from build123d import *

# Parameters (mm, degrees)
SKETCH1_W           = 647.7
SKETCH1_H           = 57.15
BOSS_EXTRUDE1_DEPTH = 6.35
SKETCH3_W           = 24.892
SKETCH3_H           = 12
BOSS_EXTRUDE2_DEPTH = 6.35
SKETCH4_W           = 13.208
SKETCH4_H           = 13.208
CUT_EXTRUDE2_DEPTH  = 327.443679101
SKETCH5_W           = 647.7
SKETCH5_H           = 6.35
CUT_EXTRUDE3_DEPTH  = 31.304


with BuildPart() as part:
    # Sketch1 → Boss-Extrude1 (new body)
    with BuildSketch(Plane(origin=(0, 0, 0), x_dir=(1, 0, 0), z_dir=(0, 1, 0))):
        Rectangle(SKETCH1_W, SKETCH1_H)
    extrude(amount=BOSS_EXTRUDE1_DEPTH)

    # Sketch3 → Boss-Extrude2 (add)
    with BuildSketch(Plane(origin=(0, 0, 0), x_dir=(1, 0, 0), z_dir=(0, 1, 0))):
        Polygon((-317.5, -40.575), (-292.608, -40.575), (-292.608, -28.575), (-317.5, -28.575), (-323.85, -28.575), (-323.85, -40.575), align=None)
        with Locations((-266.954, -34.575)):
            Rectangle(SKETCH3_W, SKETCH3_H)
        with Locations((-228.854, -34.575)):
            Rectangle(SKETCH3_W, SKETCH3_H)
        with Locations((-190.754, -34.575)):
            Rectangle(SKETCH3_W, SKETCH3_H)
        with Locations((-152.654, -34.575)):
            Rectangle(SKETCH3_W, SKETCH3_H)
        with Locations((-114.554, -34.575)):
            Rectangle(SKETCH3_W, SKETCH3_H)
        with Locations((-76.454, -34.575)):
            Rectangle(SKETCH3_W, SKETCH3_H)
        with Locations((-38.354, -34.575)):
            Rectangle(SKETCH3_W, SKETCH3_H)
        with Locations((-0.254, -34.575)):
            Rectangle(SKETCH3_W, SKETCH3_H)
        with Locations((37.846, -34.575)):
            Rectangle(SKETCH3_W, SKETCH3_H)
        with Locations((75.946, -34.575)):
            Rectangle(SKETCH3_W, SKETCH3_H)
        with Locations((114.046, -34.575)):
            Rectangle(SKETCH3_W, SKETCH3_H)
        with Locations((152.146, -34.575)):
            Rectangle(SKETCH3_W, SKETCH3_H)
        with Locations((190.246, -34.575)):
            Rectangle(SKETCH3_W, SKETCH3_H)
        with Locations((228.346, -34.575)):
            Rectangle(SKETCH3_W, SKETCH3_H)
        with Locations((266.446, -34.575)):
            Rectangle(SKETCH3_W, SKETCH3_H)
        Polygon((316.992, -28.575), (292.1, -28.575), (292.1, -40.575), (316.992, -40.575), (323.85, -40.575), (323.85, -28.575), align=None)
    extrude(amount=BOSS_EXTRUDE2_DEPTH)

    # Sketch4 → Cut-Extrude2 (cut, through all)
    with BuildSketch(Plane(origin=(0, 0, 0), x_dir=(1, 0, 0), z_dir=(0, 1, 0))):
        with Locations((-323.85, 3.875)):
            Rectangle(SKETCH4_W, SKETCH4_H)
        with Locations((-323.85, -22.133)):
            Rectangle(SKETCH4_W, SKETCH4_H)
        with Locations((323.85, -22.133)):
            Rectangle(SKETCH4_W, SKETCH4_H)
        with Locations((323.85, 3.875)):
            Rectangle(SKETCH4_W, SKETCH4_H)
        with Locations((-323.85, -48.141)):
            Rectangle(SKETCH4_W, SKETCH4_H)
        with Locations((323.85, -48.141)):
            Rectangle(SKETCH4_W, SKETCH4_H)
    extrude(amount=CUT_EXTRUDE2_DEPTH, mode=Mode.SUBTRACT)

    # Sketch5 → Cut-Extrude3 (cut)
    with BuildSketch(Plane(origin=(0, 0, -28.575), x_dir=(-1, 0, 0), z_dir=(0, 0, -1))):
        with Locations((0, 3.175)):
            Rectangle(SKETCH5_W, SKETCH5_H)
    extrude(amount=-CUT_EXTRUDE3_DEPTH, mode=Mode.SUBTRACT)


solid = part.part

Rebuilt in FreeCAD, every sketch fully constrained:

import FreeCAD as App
import Part
import Sketcher
Q = App.Units.Quantity

doc = App.newDocument("Part")
params = doc.addObject("Spreadsheet::Sheet", "Params")
for row, (alias, value) in enumerate([
    ("sketch1_width", "25.5 in"),
    ("sketch1_height", "2.25 in"),
    ("pad1_length", "0.25 in"),
    ("sketch2_width", "1.23 in"),
    ("sketch2_width2", "0.98 in"),
    ("sketch2_width3", "1.25 in"),
    ("pad2_length", "0.25 in"),
    ("sketch3_width", "0.52 in"),
    ("sketch4_width", "25.5 in"),
    ("sketch4_height", "0.25 in"),
    ("pocket2_length", "31.304 mm"),
], start=1):
    params.set(f"A{row}", alias)
    params.set(f"B{row}", "=" + value)
    params.setAlias(f"B{row}", alias)

body = doc.addObject("PartDesign::Body", "Body")

sketch1 = body.newObject("Sketcher::SketchObject", "Sketch")
sketch1.AttachmentSupport = (doc.getObject("XZ_Plane"), [""])
sketch1.MapMode = "FlatFace"
sketch1.addGeometry(Part.LineSegment(App.Vector(-324, -29, 0), App.Vector(-324, 29, 0)), False)
sketch1.addGeometry(Part.LineSegment(App.Vector(-324, 29, 0), App.Vector(324, 29, 0)), False)
sketch1.addGeometry(Part.LineSegment(App.Vector(324, 29, 0), App.Vector(324, -29, 0)), False)
sketch1.addGeometry(Part.LineSegment(App.Vector(324, -29, 0), App.Vector(-324, -29, 0)), False)
sketch1.addConstraint(Sketcher.Constraint("Coincident", 0, 2, 1, 1))
sketch1.addConstraint(Sketcher.Constraint("Coincident", 1, 2, 2, 1))
sketch1.addConstraint(Sketcher.Constraint("Coincident", 2, 2, 3, 1))
sketch1.addConstraint(Sketcher.Constraint("Coincident", 3, 2, 0, 1))
sketch1.addConstraint(Sketcher.Constraint("Vertical", 0))
sketch1.addConstraint(Sketcher.Constraint("Horizontal", 1))
sketch1.addConstraint(Sketcher.Constraint("Vertical", 2))
sketch1.addConstraint(Sketcher.Constraint("Horizontal", 3))
sketch1.addConstraint(Sketcher.Constraint("Symmetric", 0, 2, 2, 2, -1, 1))
sketch1.addConstraint(Sketcher.Constraint("DistanceX", 1, 1, 1, 2, Q("25.5 in")))
sketch1.addConstraint(Sketcher.Constraint("DistanceY", 0, 1, 0, 2, Q("2.25 in")))
sketch1.setExpression("Constraints[9]", "Params.sketch1_width")
sketch1.setExpression("Constraints[10]", "Params.sketch1_height")
pad1 = body.newObject("PartDesign::Pad", "Pad")
pad1.Profile = sketch1
pad1.setExpression("Length", "Params.pad1_length")
pad1.Reversed = True

sketch2 = body.newObject("Sketcher::SketchObject", "Sketch001")
sketch2.AttachmentSupport = (doc.getObject("XZ_Plane"), [""])
sketch2.MapMode = "FlatFace"
sketch2.addGeometry(Part.LineSegment(App.Vector(-293, 41, 0), App.Vector(-293, 29, 0)), False)
sketch2.addGeometry(Part.LineSegment(App.Vector(-293, 29, 0), App.Vector(-324, 29, 0)), False)
sketch2.addGeometry(Part.LineSegment(App.Vector(-324, 29, 0), App.Vector(-324, 41, 0)), False)
sketch2.addGeometry(Part.LineSegment(App.Vector(-324, 41, 0), App.Vector(-293, 41, 0)), False)
sketch2.addGeometry(Part.LineSegment(App.Vector(-279, 29, 0), App.Vector(-279, 41, 0)), False)
sketch2.addGeometry(Part.LineSegment(App.Vector(-279, 41, 0), App.Vector(-255, 41, 0)), False)
sketch2.addGeometry(Part.LineSegment(App.Vector(-255, 41, 0), App.Vector(-255, 29, 0)), False)
sketch2.addGeometry(Part.LineSegment(App.Vector(-255, 29, 0), App.Vector(-279, 29, 0)), False)
sketch2.addGeometry(Part.LineSegment(App.Vector(-241, 29, 0), App.Vector(-241, 41, 0)), False)
sketch2.addGeometry(Part.LineSegment(App.Vector(-241, 41, 0), App.Vector(-216, 41, 0)), False)
sketch2.addGeometry(Part.LineSegment(App.Vector(-216, 41, 0), App.Vector(-216, 29, 0)), False)
sketch2.addGeometry(Part.LineSegment(App.Vector(-216, 29, 0), App.Vector(-241, 29, 0)), False)
sketch2.addGeometry(Part.LineSegment(App.Vector(-203, 29, 0), App.Vector(-203, 41, 0)), False)
sketch2.addGeometry(Part.LineSegment(App.Vector(-203, 41, 0), App.Vector(-178, 41, 0)), False)
sketch2.addGeometry(Part.LineSegment(App.Vector(-178, 41, 0), App.Vector(-178, 29, 0)), False)
sketch2.addGeometry(Part.LineSegment(App.Vector(-178, 29, 0), App.Vector(-203, 29, 0)), False)
sketch2.addGeometry(Part.LineSegment(App.Vector(-165, 29, 0), App.Vector(-165, 41, 0)), False)
sketch2.addGeometry(Part.LineSegment(App.Vector(-165, 41, 0), App.Vector(-140, 41, 0)), False)
sketch2.addGeometry(Part.LineSegment(App.Vector(-140, 41, 0), App.Vector(-140, 29, 0)), False)
sketch2.addGeometry(Part.LineSegment(App.Vector(-140, 29, 0), App.Vector(-165, 29, 0)), False)
sketch2.addGeometry(Part.LineSegment(App.Vector(-127, 29, 0), App.Vector(-127, 41, 0)), False)
sketch2.addGeometry(Part.LineSegment(App.Vector(-127, 41, 0), App.Vector(-102, 41, 0)), False)
sketch2.addGeometry(Part.LineSegment(App.Vector(-102, 41, 0), App.Vector(-102, 29, 0)), False)
sketch2.addGeometry(Part.LineSegment(App.Vector(-102, 29, 0), App.Vector(-127, 29, 0)), False)
sketch2.addGeometry(Part.LineSegment(App.Vector(-89, 29, 0), App.Vector(-89, 41, 0)), False)
sketch2.addGeometry(Part.LineSegment(App.Vector(-89, 41, 0), App.Vector(-64, 41, 0)), False)
sketch2.addGeometry(Part.LineSegment(App.Vector(-64, 41, 0), App.Vector(-64, 29, 0)), False)
sketch2.addGeometry(Part.LineSegment(App.Vector(-64, 29, 0), App.Vector(-89, 29, 0)), False)
sketch2.addGeometry(Part.LineSegment(App.Vector(-51, 29, 0), App.Vector(-51, 41, 0)), False)
sketch2.addGeometry(Part.LineSegment(App.Vector(-51, 41, 0), App.Vector(-26, 41, 0)), False)
sketch2.addGeometry(Part.LineSegment(App.Vector(-26, 41, 0), App.Vector(-26, 29, 0)), False)
sketch2.addGeometry(Part.LineSegment(App.Vector(-26, 29, 0), App.Vector(-51, 29, 0)), False)
sketch2.addGeometry(Part.LineSegment(App.Vector(-13, 29, 0), App.Vector(-13, 41, 0)), False)
sketch2.addGeometry(Part.LineSegment(App.Vector(-13, 41, 0), App.Vector(12, 41, 0)), False)
sketch2.addGeometry(Part.LineSegment(App.Vector(12, 41, 0), App.Vector(12, 29, 0)), False)
sketch2.addGeometry(Part.LineSegment(App.Vector(12, 29, 0), App.Vector(-13, 29, 0)), False)
sketch2.addGeometry(Part.LineSegment(App.Vector(25, 29, 0), App.Vector(25, 41, 0)), False)
sketch2.addGeometry(Part.LineSegment(App.Vector(25, 41, 0), App.Vector(50, 41, 0)), False)
sketch2.addGeometry(Part.LineSegment(App.Vector(50, 41, 0), App.Vector(50, 29, 0)), False)
sketch2.addGeometry(Part.LineSegment(App.Vector(50, 29, 0), App.Vector(25, 29, 0)), False)
sketch2.addGeometry(Part.LineSegment(App.Vector(64, 29, 0), App.Vector(64, 41, 0)), False)
sketch2.addGeometry(Part.LineSegment(App.Vector(64, 41, 0), App.Vector(88, 41, 0)), False)
sketch2.addGeometry(Part.LineSegment(App.Vector(88, 41, 0), App.Vector(88, 29, 0)), False)
sketch2.addGeometry(Part.LineSegment(App.Vector(88, 29, 0), App.Vector(64, 29, 0)), False)
sketch2.addGeometry(Part.LineSegment(App.Vector(102, 29, 0), App.Vector(102, 41, 0)), False)
sketch2.addGeometry(Part.LineSegment(App.Vector(102, 41, 0), App.Vector(126, 41, 0)), False)
sketch2.addGeometry(Part.LineSegment(App.Vector(126, 41, 0), App.Vector(126, 29, 0)), False)
sketch2.addGeometry(Part.LineSegment(App.Vector(126, 29, 0), App.Vector(102, 29, 0)), False)
sketch2.addGeometry(Part.LineSegment(App.Vector(140, 29, 0), App.Vector(140, 41, 0)), False)
sketch2.addGeometry(Part.LineSegment(App.Vector(140, 41, 0), App.Vector(165, 41, 0)), False)
sketch2.addGeometry(Part.LineSegment(App.Vector(165, 41, 0), App.Vector(165, 29, 0)), False)
sketch2.addGeometry(Part.LineSegment(App.Vector(165, 29, 0), App.Vector(140, 29, 0)), False)
sketch2.addGeometry(Part.LineSegment(App.Vector(178, 29, 0), App.Vector(178, 41, 0)), False)
sketch2.addGeometry(Part.LineSegment(App.Vector(178, 41, 0), App.Vector(203, 41, 0)), False)
sketch2.addGeometry(Part.LineSegment(App.Vector(203, 41, 0), App.Vector(203, 29, 0)), False)
sketch2.addGeometry(Part.LineSegment(App.Vector(203, 29, 0), App.Vector(178, 29, 0)), False)
sketch2.addGeometry(Part.LineSegment(App.Vector(216, 29, 0), App.Vector(216, 41, 0)), False)
sketch2.addGeometry(Part.LineSegment(App.Vector(216, 41, 0), App.Vector(241, 41, 0)), False)
sketch2.addGeometry(Part.LineSegment(App.Vector(241, 41, 0), App.Vector(241, 29, 0)), False)
sketch2.addGeometry(Part.LineSegment(App.Vector(241, 29, 0), App.Vector(216, 29, 0)), False)
sketch2.addGeometry(Part.LineSegment(App.Vector(254, 29, 0), App.Vector(254, 41, 0)), False)
sketch2.addGeometry(Part.LineSegment(App.Vector(254, 41, 0), App.Vector(279, 41, 0)), False)
sketch2.addGeometry(Part.LineSegment(App.Vector(279, 41, 0), App.Vector(279, 29, 0)), False)
sketch2.addGeometry(Part.LineSegment(App.Vector(279, 29, 0), App.Vector(254, 29, 0)), False)
sketch2.addGeometry(Part.LineSegment(App.Vector(292, 29, 0), App.Vector(292, 41, 0)), False)
sketch2.addGeometry(Part.LineSegment(App.Vector(292, 41, 0), App.Vector(324, 41, 0)), False)
sketch2.addGeometry(Part.LineSegment(App.Vector(324, 41, 0), App.Vector(324, 29, 0)), False)
sketch2.addGeometry(Part.LineSegment(App.Vector(324, 29, 0), App.Vector(292, 29, 0)), False)
sketch2.addConstraint(Sketcher.Constraint("Coincident", 0, 2, 1, 1))
sketch2.addConstraint(Sketcher.Constraint("Coincident", 1, 2, 2, 1))
sketch2.addConstraint(Sketcher.Constraint("Coincident", 2, 2, 3, 1))
sketch2.addConstraint(Sketcher.Constraint("Coincident", 3, 2, 0, 1))
sketch2.addConstraint(Sketcher.Constraint("Coincident", 4, 2, 5, 1))
sketch2.addConstraint(Sketcher.Constraint("Coincident", 5, 2, 6, 1))
sketch2.addConstraint(Sketcher.Constraint("Coincident", 6, 2, 7, 1))
sketch2.addConstraint(Sketcher.Constraint("Coincident", 7, 2, 4, 1))
sketch2.addConstraint(Sketcher.Constraint("Coincident", 8, 2, 9, 1))
sketch2.addConstraint(Sketcher.Constraint("Coincident", 9, 2, 10, 1))
sketch2.addConstraint(Sketcher.Constraint("Coincident", 10, 2, 11, 1))
sketch2.addConstraint(Sketcher.Constraint("Coincident", 11, 2, 8, 1))
sketch2.addConstraint(Sketcher.Constraint("Coincident", 12, 2, 13, 1))
sketch2.addConstraint(Sketcher.Constraint("Coincident", 13, 2, 14, 1))
sketch2.addConstraint(Sketcher.Constraint("Coincident", 14, 2, 15, 1))
sketch2.addConstraint(Sketcher.Constraint("Coincident", 15, 2, 12, 1))
sketch2.addConstraint(Sketcher.Constraint("Coincident", 16, 2, 17, 1))
sketch2.addConstraint(Sketcher.Constraint("Coincident", 17, 2, 18, 1))
sketch2.addConstraint(Sketcher.Constraint("Coincident", 18, 2, 19, 1))
sketch2.addConstraint(Sketcher.Constraint("Coincident", 19, 2, 16, 1))
sketch2.addConstraint(Sketcher.Constraint("Coincident", 20, 2, 21, 1))
sketch2.addConstraint(Sketcher.Constraint("Coincident", 21, 2, 22, 1))
sketch2.addConstraint(Sketcher.Constraint("Coincident", 22, 2, 23, 1))
sketch2.addConstraint(Sketcher.Constraint("Coincident", 23, 2, 20, 1))
sketch2.addConstraint(Sketcher.Constraint("Coincident", 24, 2, 25, 1))
sketch2.addConstraint(Sketcher.Constraint("Coincident", 25, 2, 26, 1))
sketch2.addConstraint(Sketcher.Constraint("Coincident", 26, 2, 27, 1))
sketch2.addConstraint(Sketcher.Constraint("Coincident", 27, 2, 24, 1))
sketch2.addConstraint(Sketcher.Constraint("Coincident", 28, 2, 29, 1))
sketch2.addConstraint(Sketcher.Constraint("Coincident", 29, 2, 30, 1))
sketch2.addConstraint(Sketcher.Constraint("Coincident", 30, 2, 31, 1))
sketch2.addConstraint(Sketcher.Constraint("Coincident", 31, 2, 28, 1))
sketch2.addConstraint(Sketcher.Constraint("Coincident", 32, 2, 33, 1))
sketch2.addConstraint(Sketcher.Constraint("Coincident", 33, 2, 34, 1))
sketch2.addConstraint(Sketcher.Constraint("Coincident", 34, 2, 35, 1))
sketch2.addConstraint(Sketcher.Constraint("Coincident", 35, 2, 32, 1))
sketch2.addConstraint(Sketcher.Constraint("Coincident", 36, 2, 37, 1))
sketch2.addConstraint(Sketcher.Constraint("Coincident", 37, 2, 38, 1))
sketch2.addConstraint(Sketcher.Constraint("Coincident", 38, 2, 39, 1))
sketch2.addConstraint(Sketcher.Constraint("Coincident", 39, 2, 36, 1))
sketch2.addConstraint(Sketcher.Constraint("Coincident", 40, 2, 41, 1))
sketch2.addConstraint(Sketcher.Constraint("Coincident", 41, 2, 42, 1))
sketch2.addConstraint(Sketcher.Constraint("Coincident", 42, 2, 43, 1))
sketch2.addConstraint(Sketcher.Constraint("Coincident", 43, 2, 40, 1))
sketch2.addConstraint(Sketcher.Constraint("Coincident", 44, 2, 45, 1))
sketch2.addConstraint(Sketcher.Constraint("Coincident", 45, 2, 46, 1))
sketch2.addConstraint(Sketcher.Constraint("Coincident", 46, 2, 47, 1))
sketch2.addConstraint(Sketcher.Constraint("Coincident", 47, 2, 44, 1))
sketch2.addConstraint(Sketcher.Constraint("Coincident", 48, 2, 49, 1))
sketch2.addConstraint(Sketcher.Constraint("Coincident", 49, 2, 50, 1))
sketch2.addConstraint(Sketcher.Constraint("Coincident", 50, 2, 51, 1))
sketch2.addConstraint(Sketcher.Constraint("Coincident", 51, 2, 48, 1))
sketch2.addConstraint(Sketcher.Constraint("Coincident", 52, 2, 53, 1))
sketch2.addConstraint(Sketcher.Constraint("Coincident", 53, 2, 54, 1))
sketch2.addConstraint(Sketcher.Constraint("Coincident", 54, 2, 55, 1))
sketch2.addConstraint(Sketcher.Constraint("Coincident", 55, 2, 52, 1))
sketch2.addConstraint(Sketcher.Constraint("Coincident", 56, 2, 57, 1))
sketch2.addConstraint(Sketcher.Constraint("Coincident", 57, 2, 58, 1))
sketch2.addConstraint(Sketcher.Constraint("Coincident", 58, 2, 59, 1))
sketch2.addConstraint(Sketcher.Constraint("Coincident", 59, 2, 56, 1))
sketch2.addConstraint(Sketcher.Constraint("Coincident", 60, 2, 61, 1))
sketch2.addConstraint(Sketcher.Constraint("Coincident", 61, 2, 62, 1))
sketch2.addConstraint(Sketcher.Constraint("Coincident", 62, 2, 63, 1))
sketch2.addConstraint(Sketcher.Constraint("Coincident", 63, 2, 60, 1))
sketch2.addConstraint(Sketcher.Constraint("Coincident", 64, 2, 65, 1))
sketch2.addConstraint(Sketcher.Constraint("Coincident", 65, 2, 66, 1))
sketch2.addConstraint(Sketcher.Constraint("Coincident", 66, 2, 67, 1))
sketch2.addConstraint(Sketcher.Constraint("Coincident", 67, 2, 64, 1))
sketch2.addConstraint(Sketcher.Constraint("Vertical", 0))
sketch2.addConstraint(Sketcher.Constraint("Horizontal", 1))
sketch2.addConstraint(Sketcher.Constraint("Vertical", 2))
sketch2.addConstraint(Sketcher.Constraint("Horizontal", 3))
sketch2.addConstraint(Sketcher.Constraint("Vertical", 4))
sketch2.addConstraint(Sketcher.Constraint("Horizontal", 5))
sketch2.addConstraint(Sketcher.Constraint("Vertical", 6))
sketch2.addConstraint(Sketcher.Constraint("Horizontal", 7))
sketch2.addConstraint(Sketcher.Constraint("Vertical", 8))
sketch2.addConstraint(Sketcher.Constraint("Horizontal", 9))
sketch2.addConstraint(Sketcher.Constraint("Vertical", 10))
sketch2.addConstraint(Sketcher.Constraint("Horizontal", 11))
sketch2.addConstraint(Sketcher.Constraint("Vertical", 12))
sketch2.addConstraint(Sketcher.Constraint("Horizontal", 13))
sketch2.addConstraint(Sketcher.Constraint("Vertical", 14))
sketch2.addConstraint(Sketcher.Constraint("Horizontal", 15))
sketch2.addConstraint(Sketcher.Constraint("Vertical", 16))
sketch2.addConstraint(Sketcher.Constraint("Horizontal", 17))
sketch2.addConstraint(Sketcher.Constraint("Vertical", 18))
sketch2.addConstraint(Sketcher.Constraint("Horizontal", 19))
sketch2.addConstraint(Sketcher.Constraint("Vertical", 20))
sketch2.addConstraint(Sketcher.Constraint("Horizontal", 21))
sketch2.addConstraint(Sketcher.Constraint("Vertical", 22))
sketch2.addConstraint(Sketcher.Constraint("Horizontal", 23))
sketch2.addConstraint(Sketcher.Constraint("Vertical", 24))
sketch2.addConstraint(Sketcher.Constraint("Horizontal", 25))
sketch2.addConstraint(Sketcher.Constraint("Vertical", 26))
sketch2.addConstraint(Sketcher.Constraint("Horizontal", 27))
sketch2.addConstraint(Sketcher.Constraint("Vertical", 28))
sketch2.addConstraint(Sketcher.Constraint("Horizontal", 29))
sketch2.addConstraint(Sketcher.Constraint("Vertical", 30))
sketch2.addConstraint(Sketcher.Constraint("Horizontal", 31))
sketch2.addConstraint(Sketcher.Constraint("Vertical", 32))
sketch2.addConstraint(Sketcher.Constraint("Horizontal", 33))
sketch2.addConstraint(Sketcher.Constraint("Vertical", 34))
sketch2.addConstraint(Sketcher.Constraint("Horizontal", 35))
sketch2.addConstraint(Sketcher.Constraint("Vertical", 36))
sketch2.addConstraint(Sketcher.Constraint("Horizontal", 37))
sketch2.addConstraint(Sketcher.Constraint("Vertical", 38))
sketch2.addConstraint(Sketcher.Constraint("Horizontal", 39))
sketch2.addConstraint(Sketcher.Constraint("Vertical", 40))
sketch2.addConstraint(Sketcher.Constraint("Horizontal", 41))
sketch2.addConstraint(Sketcher.Constraint("Vertical", 42))
sketch2.addConstraint(Sketcher.Constraint("Horizontal", 43))
sketch2.addConstraint(Sketcher.Constraint("Vertical", 44))
sketch2.addConstraint(Sketcher.Constraint("Horizontal", 45))
sketch2.addConstraint(Sketcher.Constraint("Vertical", 46))
sketch2.addConstraint(Sketcher.Constraint("Horizontal", 47))
sketch2.addConstraint(Sketcher.Constraint("Vertical", 48))
sketch2.addConstraint(Sketcher.Constraint("Horizontal", 49))
sketch2.addConstraint(Sketcher.Constraint("Vertical", 50))
sketch2.addConstraint(Sketcher.Constraint("Horizontal", 51))
sketch2.addConstraint(Sketcher.Constraint("Vertical", 52))
sketch2.addConstraint(Sketcher.Constraint("Horizontal", 53))
sketch2.addConstraint(Sketcher.Constraint("Vertical", 54))
sketch2.addConstraint(Sketcher.Constraint("Horizontal", 55))
sketch2.addConstraint(Sketcher.Constraint("Vertical", 56))
sketch2.addConstraint(Sketcher.Constraint("Horizontal", 57))
sketch2.addConstraint(Sketcher.Constraint("Vertical", 58))
sketch2.addConstraint(Sketcher.Constraint("Horizontal", 59))
sketch2.addConstraint(Sketcher.Constraint("Vertical", 60))
sketch2.addConstraint(Sketcher.Constraint("Horizontal", 61))
sketch2.addConstraint(Sketcher.Constraint("Vertical", 62))
sketch2.addConstraint(Sketcher.Constraint("Horizontal", 63))
sketch2.addConstraint(Sketcher.Constraint("Vertical", 64))
sketch2.addConstraint(Sketcher.Constraint("Horizontal", 65))
sketch2.addConstraint(Sketcher.Constraint("Vertical", 66))
sketch2.addConstraint(Sketcher.Constraint("Horizontal", 67))
sketch2.addConstraint(Sketcher.Constraint("Symmetric", 2, 2, 65, 2, -2))
sketch2.addConstraint(Sketcher.Constraint("Horizontal", 3, 2, 4, 2))
sketch2.addConstraint(Sketcher.Constraint("Horizontal", 1, 2, 6, 2))
sketch2.addConstraint(Sketcher.Constraint("Horizontal", 5, 2, 8, 2))
sketch2.addConstraint(Sketcher.Constraint("Horizontal", 7, 2, 10, 2))
sketch2.addConstraint(Sketcher.Constraint("Horizontal", 9, 2, 12, 2))
sketch2.addConstraint(Sketcher.Constraint("Horizontal", 11, 2, 14, 2))
sketch2.addConstraint(Sketcher.Constraint("Horizontal", 13, 2, 16, 2))
sketch2.addConstraint(Sketcher.Constraint("Horizontal", 15, 2, 18, 2))
sketch2.addConstraint(Sketcher.Constraint("Horizontal", 17, 2, 20, 2))
sketch2.addConstraint(Sketcher.Constraint("Horizontal", 19, 2, 22, 2))
sketch2.addConstraint(Sketcher.Constraint("Horizontal", 21, 2, 24, 2))
sketch2.addConstraint(Sketcher.Constraint("Horizontal", 23, 2, 26, 2))
sketch2.addConstraint(Sketcher.Constraint("Horizontal", 25, 2, 28, 2))
sketch2.addConstraint(Sketcher.Constraint("Horizontal", 27, 2, 30, 2))
sketch2.addConstraint(Sketcher.Constraint("Horizontal", 29, 2, 32, 2))
sketch2.addConstraint(Sketcher.Constraint("Horizontal", 31, 2, 34, 2))
sketch2.addConstraint(Sketcher.Constraint("Horizontal", 33, 2, 36, 2))
sketch2.addConstraint(Sketcher.Constraint("Horizontal", 35, 2, 38, 2))
sketch2.addConstraint(Sketcher.Constraint("Horizontal", 37, 2, 40, 2))
sketch2.addConstraint(Sketcher.Constraint("Horizontal", 39, 2, 42, 2))
sketch2.addConstraint(Sketcher.Constraint("Horizontal", 41, 2, 44, 2))
sketch2.addConstraint(Sketcher.Constraint("Horizontal", 43, 2, 46, 2))
sketch2.addConstraint(Sketcher.Constraint("Horizontal", 45, 2, 48, 2))
sketch2.addConstraint(Sketcher.Constraint("Horizontal", 47, 2, 50, 2))
sketch2.addConstraint(Sketcher.Constraint("Horizontal", 49, 2, 52, 2))
sketch2.addConstraint(Sketcher.Constraint("Horizontal", 51, 2, 54, 2))
sketch2.addConstraint(Sketcher.Constraint("Horizontal", 53, 2, 56, 2))
sketch2.addConstraint(Sketcher.Constraint("Horizontal", 55, 2, 58, 2))
sketch2.addConstraint(Sketcher.Constraint("Horizontal", 57, 2, 60, 2))
sketch2.addConstraint(Sketcher.Constraint("Horizontal", 59, 2, 62, 2))
sketch2.addConstraint(Sketcher.Constraint("Horizontal", 63, 2, 66, 2))
sketch2.addConstraint(Sketcher.Constraint("Equal", 7, 9))
sketch2.addConstraint(Sketcher.Constraint("Equal", 11, 13))
sketch2.addConstraint(Sketcher.Constraint("Equal", 15, 17))
sketch2.addConstraint(Sketcher.Constraint("Equal", 19, 21))
sketch2.addConstraint(Sketcher.Constraint("Equal", 23, 25))
sketch2.addConstraint(Sketcher.Constraint("Equal", 27, 29))
sketch2.addConstraint(Sketcher.Constraint("Equal", 31, 33))
sketch2.addConstraint(Sketcher.Constraint("Equal", 35, 37))
sketch2.addConstraint(Sketcher.Constraint("Equal", 39, 41))
sketch2.addConstraint(Sketcher.Constraint("Equal", 43, 45))
sketch2.addConstraint(Sketcher.Constraint("Equal", 47, 49))
sketch2.addConstraint(Sketcher.Constraint("Equal", 51, 53))
sketch2.addConstraint(Sketcher.Constraint("Equal", 55, 57))
sketch2.addConstraint(Sketcher.Constraint("Equal", 59, 61))
sketch2.addConstraint(Sketcher.Constraint("DistanceX", 4, 2, -1, 1, Q("11 in")))
sketch2.addConstraint(Sketcher.Constraint("DistanceX", 12, 2, -1, 1, Q("8 in")))
sketch2.addConstraint(Sketcher.Constraint("DistanceX", 20, 2, -1, 1, Q("5 in")))
sketch2.addConstraint(Sketcher.Constraint("DistanceX", 28, 2, -1, 1, Q("2 in")))
sketch2.addConstraint(Sketcher.Constraint("DistanceX", -1, 1, 36, 2, Q("1 in")))
sketch2.addConstraint(Sketcher.Constraint("DistanceX", -1, 1, 44, 2, Q("4 in")))
sketch2.addConstraint(Sketcher.Constraint("DistanceX", -1, 1, 52, 2, Q("7 in")))
sketch2.addConstraint(Sketcher.Constraint("DistanceX", -1, 1, 60, 2, Q("10 in")))
sketch2.addConstraint(Sketcher.Constraint("DistanceX", 1, 2, 1, 1, Q("1.23 in")))
sketch2.addConstraint(Sketcher.Constraint("DistanceX", 5, 1, 5, 2, Q("0.98 in")))
sketch2.addConstraint(Sketcher.Constraint("DistanceX", 65, 1, 65, 2, Q("1.25 in")))
sketch2.addConstraint(Sketcher.Constraint("DistanceX", 8, 2, -1, 1, Q("9.5 in")))
sketch2.addConstraint(Sketcher.Constraint("DistanceX", 16, 2, -1, 1, Q("6.5 in")))
sketch2.addConstraint(Sketcher.Constraint("DistanceX", 24, 2, -1, 1, Q("3.5 in")))
sketch2.addConstraint(Sketcher.Constraint("DistanceX", 32, 2, -1, 1, Q("0.5 in")))
sketch2.addConstraint(Sketcher.Constraint("DistanceX", -1, 1, 40, 2, Q("2.5 in")))
sketch2.addConstraint(Sketcher.Constraint("DistanceX", -1, 1, 48, 2, Q("5.5 in")))
sketch2.addConstraint(Sketcher.Constraint("DistanceX", -1, 1, 56, 2, Q("8.5 in")))
sketch2.addConstraint(Sketcher.Constraint("DistanceX", -1, 1, 64, 2, Q("11.5 in")))
sketch2.addConstraint(Sketcher.Constraint("DistanceY", -1, 1, 0, 2, Q("1.125 in")))
sketch2.addConstraint(Sketcher.Constraint("DistanceY", 0, 2, 0, 1, 12.0))
sketch2.setExpression("Constraints[190]", "Params.sketch2_width")
sketch2.setExpression("Constraints[191]", "Params.sketch2_width2")
sketch2.setExpression("Constraints[192]", "Params.sketch2_width3")
pad2 = body.newObject("PartDesign::Pad", "Pad001")
pad2.Profile = sketch2
pad2.setExpression("Length", "Params.pad2_length")
pad2.Reversed = True

sketch3 = body.newObject("Sketcher::SketchObject", "Sketch002")
sketch3.AttachmentSupport = (doc.getObject("XZ_Plane"), [""])
sketch3.MapMode = "FlatFace"
sketch3.addGeometry(Part.LineSegment(App.Vector(-330, -10, 0), App.Vector(-330, 3, 0)), False)
sketch3.addGeometry(Part.LineSegment(App.Vector(-330, 3, 0), App.Vector(-317, 3, 0)), False)
sketch3.addGeometry(Part.LineSegment(App.Vector(-317, 3, 0), App.Vector(-317, -10, 0)), False)
sketch3.addGeometry(Part.LineSegment(App.Vector(-317, -10, 0), App.Vector(-330, -10, 0)), False)
sketch3.addGeometry(Part.LineSegment(App.Vector(-330, 16, 0), App.Vector(-330, 29, 0)), False)
sketch3.addGeometry(Part.LineSegment(App.Vector(-330, 29, 0), App.Vector(-317, 29, 0)), False)
sketch3.addGeometry(Part.LineSegment(App.Vector(-317, 29, 0), App.Vector(-317, 16, 0)), False)
sketch3.addGeometry(Part.LineSegment(App.Vector(-317, 16, 0), App.Vector(-330, 16, 0)), False)
sketch3.addGeometry(Part.LineSegment(App.Vector(317, 16, 0), App.Vector(317, 29, 0)), False)
sketch3.addGeometry(Part.LineSegment(App.Vector(317, 29, 0), App.Vector(330, 29, 0)), False)
sketch3.addGeometry(Part.LineSegment(App.Vector(330, 29, 0), App.Vector(330, 16, 0)), False)
sketch3.addGeometry(Part.LineSegment(App.Vector(330, 16, 0), App.Vector(317, 16, 0)), False)
sketch3.addGeometry(Part.LineSegment(App.Vector(317, -10, 0), App.Vector(317, 3, 0)), False)
sketch3.addGeometry(Part.LineSegment(App.Vector(317, 3, 0), App.Vector(330, 3, 0)), False)
sketch3.addGeometry(Part.LineSegment(App.Vector(330, 3, 0), App.Vector(330, -10, 0)), False)
sketch3.addGeometry(Part.LineSegment(App.Vector(330, -10, 0), App.Vector(317, -10, 0)), False)
sketch3.addGeometry(Part.LineSegment(App.Vector(-330, 42, 0), App.Vector(-330, 55, 0)), False)
sketch3.addGeometry(Part.LineSegment(App.Vector(-330, 55, 0), App.Vector(-317, 55, 0)), False)
sketch3.addGeometry(Part.LineSegment(App.Vector(-317, 55, 0), App.Vector(-317, 42, 0)), False)
sketch3.addGeometry(Part.LineSegment(App.Vector(-317, 42, 0), App.Vector(-330, 42, 0)), False)
sketch3.addGeometry(Part.LineSegment(App.Vector(317, 42, 0), App.Vector(317, 55, 0)), False)
sketch3.addGeometry(Part.LineSegment(App.Vector(317, 55, 0), App.Vector(330, 55, 0)), False)
sketch3.addGeometry(Part.LineSegment(App.Vector(330, 55, 0), App.Vector(330, 42, 0)), False)
sketch3.addGeometry(Part.LineSegment(App.Vector(330, 42, 0), App.Vector(317, 42, 0)), False)
sketch3.addConstraint(Sketcher.Constraint("Coincident", 0, 2, 1, 1))
sketch3.addConstraint(Sketcher.Constraint("Coincident", 1, 2, 2, 1))
sketch3.addConstraint(Sketcher.Constraint("Coincident", 2, 2, 3, 1))
sketch3.addConstraint(Sketcher.Constraint("Coincident", 3, 2, 0, 1))
sketch3.addConstraint(Sketcher.Constraint("Coincident", 4, 2, 5, 1))
sketch3.addConstraint(Sketcher.Constraint("Coincident", 5, 2, 6, 1))
sketch3.addConstraint(Sketcher.Constraint("Coincident", 6, 2, 7, 1))
sketch3.addConstraint(Sketcher.Constraint("Coincident", 7, 2, 4, 1))
sketch3.addConstraint(Sketcher.Constraint("Coincident", 8, 2, 9, 1))
sketch3.addConstraint(Sketcher.Constraint("Coincident", 9, 2, 10, 1))
sketch3.addConstraint(Sketcher.Constraint("Coincident", 10, 2, 11, 1))
sketch3.addConstraint(Sketcher.Constraint("Coincident", 11, 2, 8, 1))
sketch3.addConstraint(Sketcher.Constraint("Coincident", 12, 2, 13, 1))
sketch3.addConstraint(Sketcher.Constraint("Coincident", 13, 2, 14, 1))
sketch3.addConstraint(Sketcher.Constraint("Coincident", 14, 2, 15, 1))
sketch3.addConstraint(Sketcher.Constraint("Coincident", 15, 2, 12, 1))
sketch3.addConstraint(Sketcher.Constraint("Coincident", 16, 2, 17, 1))
sketch3.addConstraint(Sketcher.Constraint("Coincident", 17, 2, 18, 1))
sketch3.addConstraint(Sketcher.Constraint("Coincident", 18, 2, 19, 1))
sketch3.addConstraint(Sketcher.Constraint("Coincident", 19, 2, 16, 1))
sketch3.addConstraint(Sketcher.Constraint("Coincident", 20, 2, 21, 1))
sketch3.addConstraint(Sketcher.Constraint("Coincident", 21, 2, 22, 1))
sketch3.addConstraint(Sketcher.Constraint("Coincident", 22, 2, 23, 1))
sketch3.addConstraint(Sketcher.Constraint("Coincident", 23, 2, 20, 1))
sketch3.addConstraint(Sketcher.Constraint("Vertical", 0))
sketch3.addConstraint(Sketcher.Constraint("Horizontal", 1))
sketch3.addConstraint(Sketcher.Constraint("Vertical", 2))
sketch3.addConstraint(Sketcher.Constraint("Horizontal", 3))
sketch3.addConstraint(Sketcher.Constraint("Vertical", 4))
sketch3.addConstraint(Sketcher.Constraint("Horizontal", 5))
sketch3.addConstraint(Sketcher.Constraint("Vertical", 6))
sketch3.addConstraint(Sketcher.Constraint("Horizontal", 7))
sketch3.addConstraint(Sketcher.Constraint("Vertical", 8))
sketch3.addConstraint(Sketcher.Constraint("Horizontal", 9))
sketch3.addConstraint(Sketcher.Constraint("Vertical", 10))
sketch3.addConstraint(Sketcher.Constraint("Horizontal", 11))
sketch3.addConstraint(Sketcher.Constraint("Vertical", 12))
sketch3.addConstraint(Sketcher.Constraint("Horizontal", 13))
sketch3.addConstraint(Sketcher.Constraint("Vertical", 14))
sketch3.addConstraint(Sketcher.Constraint("Horizontal", 15))
sketch3.addConstraint(Sketcher.Constraint("Vertical", 16))
sketch3.addConstraint(Sketcher.Constraint("Horizontal", 17))
sketch3.addConstraint(Sketcher.Constraint("Vertical", 18))
sketch3.addConstraint(Sketcher.Constraint("Horizontal", 19))
sketch3.addConstraint(Sketcher.Constraint("Vertical", 20))
sketch3.addConstraint(Sketcher.Constraint("Horizontal", 21))
sketch3.addConstraint(Sketcher.Constraint("Vertical", 22))
sketch3.addConstraint(Sketcher.Constraint("Horizontal", 23))
sketch3.addConstraint(Sketcher.Constraint("Symmetric", 5, 2, 8, 2, -2))
sketch3.addConstraint(Sketcher.Constraint("Symmetric", 7, 2, 10, 2, -2))
sketch3.addConstraint(Sketcher.Constraint("Symmetric", 1, 2, 12, 2, -2))
sketch3.addConstraint(Sketcher.Constraint("Symmetric", 3, 2, 14, 2, -2))
sketch3.addConstraint(Sketcher.Constraint("Symmetric", 17, 2, 20, 2, -2))
sketch3.addConstraint(Sketcher.Constraint("Symmetric", 19, 2, 22, 2, -2))
sketch3.addConstraint(Sketcher.Constraint("Vertical", 3, 2, 4, 2))
sketch3.addConstraint(Sketcher.Constraint("Vertical", 2, 2, 5, 2))
sketch3.addConstraint(Sketcher.Constraint("Vertical", 7, 2, 16, 2))
sketch3.addConstraint(Sketcher.Constraint("Vertical", 6, 2, 17, 2))
sketch3.addConstraint(Sketcher.Constraint("Equal", 23, 0))
sketch3.addConstraint(Sketcher.Constraint("Equal", 2, 4))
sketch3.addConstraint(Sketcher.Constraint("Equal", 14, 16))
sketch3.addConstraint(Sketcher.Constraint("DistanceX", 1, 1, 1, 2, Q("0.52 in")))
sketch3.addConstraint(Sketcher.Constraint("DistanceX", 4, 2, 8, 2, Q("25.5 in")))
sketch3.addConstraint(Sketcher.Constraint("DistanceY", -1, 1, 0, 2, 2.729))
sketch3.addConstraint(Sketcher.Constraint("DistanceY", -1, 1, 4, 2, 28.737))
sketch3.addConstraint(Sketcher.Constraint("DistanceY", -1, 1, 16, 2, 54.745))
sketch3.setExpression("Constraints[61]", "Params.sketch3_width")
pocket1 = body.newObject("PartDesign::Pocket", "Pocket")
pocket1.Profile = sketch3
pocket1.Type = "ThroughAll"

sketch4 = body.newObject("Sketcher::SketchObject", "Sketch003")
sketch4.AttachmentSupport = (doc.getObject("XY_Plane"), [""])
sketch4.MapMode = "FlatFace"
sketch4.AttachmentOffset = App.Placement(App.Vector(0, 0, -1.125 * 25.4), App.Rotation())
sketch4.addGeometry(Part.LineSegment(App.Vector(324, 6, 0), App.Vector(324, 0, 0)), False)
sketch4.addGeometry(Part.LineSegment(App.Vector(324, 0, 0), App.Vector(-324, 0, 0)), False)
sketch4.addGeometry(Part.LineSegment(App.Vector(-324, 0, 0), App.Vector(-324, 6, 0)), False)
sketch4.addGeometry(Part.LineSegment(App.Vector(-324, 6, 0), App.Vector(324, 6, 0)), False)
sketch4.addConstraint(Sketcher.Constraint("Coincident", 0, 2, 1, 1))
sketch4.addConstraint(Sketcher.Constraint("Coincident", 1, 2, 2, 1))
sketch4.addConstraint(Sketcher.Constraint("Coincident", 2, 2, 3, 1))
sketch4.addConstraint(Sketcher.Constraint("Coincident", 3, 2, 0, 1))
sketch4.addConstraint(Sketcher.Constraint("Vertical", 0))
sketch4.addConstraint(Sketcher.Constraint("Horizontal", 1))
sketch4.addConstraint(Sketcher.Constraint("Vertical", 2))
sketch4.addConstraint(Sketcher.Constraint("Horizontal", 3))
sketch4.addConstraint(Sketcher.Constraint("Symmetric", 0, 2, 1, 2, -1, 1))
sketch4.addConstraint(Sketcher.Constraint("DistanceX", 1, 2, 1, 1, Q("25.5 in")))
sketch4.addConstraint(Sketcher.Constraint("DistanceY", 0, 2, 0, 1, Q("0.25 in")))
sketch4.setExpression("Constraints[9]", "Params.sketch4_width")
sketch4.setExpression("Constraints[10]", "Params.sketch4_height")
pocket2 = body.newObject("PartDesign::Pocket", "Pocket001")
pocket2.Profile = sketch4
pocket2.setExpression("Length", "Params.pocket2_length")
pocket2.Reversed = True

doc.recompute()
